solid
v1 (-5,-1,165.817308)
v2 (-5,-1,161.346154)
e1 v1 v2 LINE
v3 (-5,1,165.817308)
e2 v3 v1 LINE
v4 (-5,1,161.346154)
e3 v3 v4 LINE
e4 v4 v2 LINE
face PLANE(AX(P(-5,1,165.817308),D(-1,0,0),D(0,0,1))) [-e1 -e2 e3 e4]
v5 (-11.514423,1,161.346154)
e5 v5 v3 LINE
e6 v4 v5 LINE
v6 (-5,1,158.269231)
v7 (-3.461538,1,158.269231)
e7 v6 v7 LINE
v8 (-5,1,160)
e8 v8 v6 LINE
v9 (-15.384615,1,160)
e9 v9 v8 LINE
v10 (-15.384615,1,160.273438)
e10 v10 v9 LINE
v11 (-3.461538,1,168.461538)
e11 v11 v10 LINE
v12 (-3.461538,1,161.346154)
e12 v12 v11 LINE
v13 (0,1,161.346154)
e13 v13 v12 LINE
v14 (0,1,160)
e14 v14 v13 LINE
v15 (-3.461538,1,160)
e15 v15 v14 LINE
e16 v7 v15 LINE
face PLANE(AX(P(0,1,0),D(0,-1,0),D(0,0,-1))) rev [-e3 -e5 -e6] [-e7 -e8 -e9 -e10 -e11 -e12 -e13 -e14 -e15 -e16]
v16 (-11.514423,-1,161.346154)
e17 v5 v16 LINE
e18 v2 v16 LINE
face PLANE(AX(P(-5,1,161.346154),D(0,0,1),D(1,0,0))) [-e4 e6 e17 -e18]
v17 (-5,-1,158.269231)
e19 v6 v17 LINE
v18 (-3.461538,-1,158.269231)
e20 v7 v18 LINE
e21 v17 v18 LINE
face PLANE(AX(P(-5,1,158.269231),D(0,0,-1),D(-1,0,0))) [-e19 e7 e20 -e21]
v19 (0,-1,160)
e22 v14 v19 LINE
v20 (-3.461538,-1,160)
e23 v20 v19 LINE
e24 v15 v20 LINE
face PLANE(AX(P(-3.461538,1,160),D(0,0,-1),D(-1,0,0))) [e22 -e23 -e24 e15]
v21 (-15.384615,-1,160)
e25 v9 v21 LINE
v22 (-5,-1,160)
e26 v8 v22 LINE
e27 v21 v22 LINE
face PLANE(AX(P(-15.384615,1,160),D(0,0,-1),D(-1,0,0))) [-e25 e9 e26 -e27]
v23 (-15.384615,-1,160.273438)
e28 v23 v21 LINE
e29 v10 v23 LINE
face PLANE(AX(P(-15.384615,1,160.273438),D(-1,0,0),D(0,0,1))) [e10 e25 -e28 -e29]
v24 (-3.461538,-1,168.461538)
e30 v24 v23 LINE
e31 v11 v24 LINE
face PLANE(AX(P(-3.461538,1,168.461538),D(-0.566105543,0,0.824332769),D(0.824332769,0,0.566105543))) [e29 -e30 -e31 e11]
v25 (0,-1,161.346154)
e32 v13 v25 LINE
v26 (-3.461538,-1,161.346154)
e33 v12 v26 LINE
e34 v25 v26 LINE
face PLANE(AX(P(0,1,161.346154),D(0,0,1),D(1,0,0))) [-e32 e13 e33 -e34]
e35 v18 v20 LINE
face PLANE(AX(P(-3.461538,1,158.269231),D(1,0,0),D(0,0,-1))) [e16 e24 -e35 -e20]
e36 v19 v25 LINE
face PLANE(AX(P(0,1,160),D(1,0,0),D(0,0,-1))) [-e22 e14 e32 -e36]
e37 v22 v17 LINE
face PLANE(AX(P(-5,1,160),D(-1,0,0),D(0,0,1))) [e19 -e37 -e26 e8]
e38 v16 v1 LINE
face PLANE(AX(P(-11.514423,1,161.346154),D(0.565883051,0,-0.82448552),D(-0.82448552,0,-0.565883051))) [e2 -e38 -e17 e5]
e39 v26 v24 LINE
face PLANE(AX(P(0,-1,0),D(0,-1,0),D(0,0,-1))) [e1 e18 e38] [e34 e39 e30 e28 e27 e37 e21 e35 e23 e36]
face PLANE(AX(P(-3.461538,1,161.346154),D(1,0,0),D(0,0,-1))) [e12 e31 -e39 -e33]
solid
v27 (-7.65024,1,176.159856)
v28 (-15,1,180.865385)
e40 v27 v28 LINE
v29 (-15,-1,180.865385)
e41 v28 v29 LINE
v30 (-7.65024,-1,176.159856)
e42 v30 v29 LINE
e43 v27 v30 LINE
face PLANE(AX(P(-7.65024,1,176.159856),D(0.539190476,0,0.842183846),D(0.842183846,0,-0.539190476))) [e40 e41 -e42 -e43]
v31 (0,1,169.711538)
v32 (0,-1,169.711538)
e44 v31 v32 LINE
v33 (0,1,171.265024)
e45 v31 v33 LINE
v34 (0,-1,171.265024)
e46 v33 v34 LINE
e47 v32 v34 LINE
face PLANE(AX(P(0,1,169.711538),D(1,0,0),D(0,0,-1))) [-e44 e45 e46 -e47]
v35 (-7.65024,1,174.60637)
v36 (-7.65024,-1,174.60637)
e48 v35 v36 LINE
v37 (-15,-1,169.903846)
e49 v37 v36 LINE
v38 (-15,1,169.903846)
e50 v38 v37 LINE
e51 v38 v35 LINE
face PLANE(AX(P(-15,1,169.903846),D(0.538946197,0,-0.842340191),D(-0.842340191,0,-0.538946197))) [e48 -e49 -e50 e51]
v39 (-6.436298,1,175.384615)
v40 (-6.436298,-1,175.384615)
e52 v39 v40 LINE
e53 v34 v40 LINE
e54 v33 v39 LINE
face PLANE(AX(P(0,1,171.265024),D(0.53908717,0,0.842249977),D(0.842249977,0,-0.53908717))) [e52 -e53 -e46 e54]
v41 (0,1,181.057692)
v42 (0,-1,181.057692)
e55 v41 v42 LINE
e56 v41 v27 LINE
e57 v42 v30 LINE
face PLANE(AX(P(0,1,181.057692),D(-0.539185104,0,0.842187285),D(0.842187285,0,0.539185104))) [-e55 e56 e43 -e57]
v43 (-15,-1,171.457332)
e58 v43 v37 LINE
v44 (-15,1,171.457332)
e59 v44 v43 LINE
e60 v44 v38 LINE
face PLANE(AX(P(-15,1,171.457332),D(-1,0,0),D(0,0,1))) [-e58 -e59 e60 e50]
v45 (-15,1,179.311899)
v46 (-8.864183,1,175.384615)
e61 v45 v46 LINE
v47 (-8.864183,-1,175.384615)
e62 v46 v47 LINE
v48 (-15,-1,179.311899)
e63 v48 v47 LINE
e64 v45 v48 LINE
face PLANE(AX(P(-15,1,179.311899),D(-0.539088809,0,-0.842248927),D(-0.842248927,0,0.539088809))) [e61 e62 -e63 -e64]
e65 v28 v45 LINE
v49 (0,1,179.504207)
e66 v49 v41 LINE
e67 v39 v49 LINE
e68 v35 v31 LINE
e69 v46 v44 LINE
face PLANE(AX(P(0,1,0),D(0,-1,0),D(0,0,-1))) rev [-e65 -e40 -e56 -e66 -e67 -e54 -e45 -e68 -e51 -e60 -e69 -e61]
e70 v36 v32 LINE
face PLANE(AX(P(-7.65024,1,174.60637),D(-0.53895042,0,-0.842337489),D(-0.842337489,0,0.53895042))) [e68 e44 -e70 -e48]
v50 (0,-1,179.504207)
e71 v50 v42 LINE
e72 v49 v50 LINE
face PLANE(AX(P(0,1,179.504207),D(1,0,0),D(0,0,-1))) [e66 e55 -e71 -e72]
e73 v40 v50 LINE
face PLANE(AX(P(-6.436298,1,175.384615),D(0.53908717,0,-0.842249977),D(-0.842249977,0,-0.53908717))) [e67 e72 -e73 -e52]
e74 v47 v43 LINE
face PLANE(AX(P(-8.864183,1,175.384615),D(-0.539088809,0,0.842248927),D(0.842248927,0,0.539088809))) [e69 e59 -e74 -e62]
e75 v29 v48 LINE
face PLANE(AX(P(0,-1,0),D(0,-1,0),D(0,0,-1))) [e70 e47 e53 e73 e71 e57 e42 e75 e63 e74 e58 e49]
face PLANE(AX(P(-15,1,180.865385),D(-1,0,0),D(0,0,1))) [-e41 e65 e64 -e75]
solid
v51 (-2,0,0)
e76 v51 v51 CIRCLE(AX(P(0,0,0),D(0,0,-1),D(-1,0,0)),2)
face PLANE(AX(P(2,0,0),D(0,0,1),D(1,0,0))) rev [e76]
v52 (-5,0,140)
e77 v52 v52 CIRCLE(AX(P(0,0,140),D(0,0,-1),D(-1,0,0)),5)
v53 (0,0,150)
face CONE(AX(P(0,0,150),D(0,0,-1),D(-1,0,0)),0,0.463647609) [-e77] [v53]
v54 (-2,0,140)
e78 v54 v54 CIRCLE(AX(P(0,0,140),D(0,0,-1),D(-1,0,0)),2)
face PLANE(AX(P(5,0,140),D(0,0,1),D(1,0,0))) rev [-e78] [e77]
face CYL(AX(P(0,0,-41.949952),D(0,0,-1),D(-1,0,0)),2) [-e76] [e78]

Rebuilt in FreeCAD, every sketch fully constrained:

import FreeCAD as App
import Part
import Sketcher
from FreeCAD import Vector


def add_polygon(sketch, points):
    """Adds a closed chain of lines whose ends are joined by coincident constraints."""
    first, n = sketch.GeometryCount, len(points)
    for a, b in zip(points, points[1:] + points[:1]):
        sketch.addGeometry(Part.LineSegment(App.Vector(*a, 0), App.Vector(*b, 0)), False)
    for i in range(n):
        sketch.addConstraint(Sketcher.Constraint("Coincident", first + i, 2, first + (i + 1) % n, 1))

doc = App.newDocument("Part")
body = doc.addObject("PartDesign::Body", "Body")

sketch1 = body.newObject("Sketcher::SketchObject", "Sketch")
sketch1.AttachmentSupport = (doc.getObject("XZ_Plane"), [""])
sketch1.MapMode = "FlatFace"
add_polygon(sketch1, [(0, 150), (5, 140), (2, 140), (2, 0), (0, 0)])
sketch1.addConstraint(Sketcher.Constraint("Horizontal", 1))
sketch1.addConstraint(Sketcher.Constraint("Vertical", 2))
sketch1.addConstraint(Sketcher.Constraint("Horizontal", 3))
sketch1.addConstraint(Sketcher.Constraint("Vertical", 4))
sketch1.addConstraint(Sketcher.Constraint("Coincident", 3, 2, -1, 1))
sketch1.addConstraint(Sketcher.Constraint("DistanceX", 1, 2, 1, 1, 3.0))
sketch1.addConstraint(Sketcher.Constraint("DistanceX", 3, 2, 3, 1, 2.0))
sketch1.addConstraint(Sketcher.Constraint("DistanceY", 2, 2, 2, 1, 140.0))
sketch1.addConstraint(Sketcher.Constraint("DistanceY", 4, 1, 4, 2, 150.0))
revolution = body.newObject("PartDesign::Revolution", "Revolution")
revolution.Profile = sketch1
revolution.ReferenceAxis = (sketch1, ["V_Axis"])
revolution.Angle = 360
body2 = doc.addObject("PartDesign::Body", "Body001")

sketch2 = body2.newObject("Sketcher::SketchObject", "Sketch001")
sketch2.AttachmentSupport = (doc.getObject("XZ_Plane001"), [""])
sketch2.MapMode = "FlatFace"
add_polygon(sketch2, [(-15.38, 160), (-15.38, 160.27), (-3.46, 168.46), (-3.46, 161.35), (0, 161.35), (0, 160), (-3.46, 160), (-3.46, 158.27), (-5, 158.27), (-5, 160)])
add_polygon(sketch2, [(-5, 161.35), (-5, 165.82), (-11.51, 161.35)])
sketch2.addConstraint(Sketcher.Constraint("Vertical", 0))
sketch2.addConstraint(Sketcher.Constraint("Vertical", 2))
sketch2.addConstraint(Sketcher.Constraint("Horizontal", 3))
sketch2.addConstraint(Sketcher.Constraint("Vertical", 4))
sketch2.addConstraint(Sketcher.Constraint("Horizontal", 5))
sketch2.addConstraint(Sketcher.Constraint("Vertical", 6))
sketch2.addConstraint(Sketcher.Constraint("Horizontal", 7))
sketch2.addConstraint(Sketcher.Constraint("Vertical", 8))
sketch2.addConstraint(Sketcher.Constraint("Horizontal", 9))
sketch2.addConstraint(Sketcher.Constraint("Vertical", 10))
sketch2.addConstraint(Sketcher.Constraint("Horizontal", 12))
sketch2.addConstraint(Sketcher.Constraint("PointOnObject", 3, 2, -2))
sketch2.addConstraint(Sketcher.Constraint("Horizontal", 5, 2, 8, 2))
sketch2.addConstraint(Sketcher.Constraint("Horizontal", 3, 2, 11, 2))
sketch2.addConstraint(Sketcher.Constraint("Vertical", 2, 2, 5, 2))
sketch2.addConstraint(Sketcher.Constraint("Vertical", 8, 2, 10, 2))
sketch2.addConstraint(Sketcher.Constraint("DistanceY", -1, 1, 4, 2, 160.0))
sketch2.addConstraint(Sketcher.Constraint("DistanceX", 7, 2, -1, 1, 5.0))
sketch2.addConstraint(Sketcher.Constraint("DistanceX", 3, 1, 3, 2, 3.461538))
sketch2.addConstraint(Sketcher.Constraint("DistanceY", 6, 2, 6, 1, 1.730769))
sketch2.addConstraint(Sketcher.Constraint("DistanceY", 0, 2, 1, 2, 8.188101))
sketch2.addConstraint(Sketcher.Constraint("DistanceX", 9, 2, 9, 1, 10.384615))
sketch2.addConstraint(Sketcher.Constraint("DistanceX", 12, 1, 12, 2, 6.514423))
sketch2.addConstraint(Sketcher.Constraint("DistanceY", 0, 1, 0, 2, 0.273438))
sketch2.addConstraint(Sketcher.Constraint("DistanceY", 2, 2, 2, 1, 7.115385))
sketch2.addConstraint(Sketcher.Constraint("DistanceY", 10, 1, 10, 2, 4.471154))
pad1 = body2.newObject("PartDesign::Pad", "Pad")
pad1.Profile = sketch2
pad1.Type = "TwoLengths"
pad1.Length = 1
pad1.Length2 = 1
pad1.Reversed = True
body3 = doc.addObject("PartDesign::Body", "Body002")

sketch3 = body3.newObject("Sketcher::SketchObject", "Sketch002")
sketch3.AttachmentSupport = (doc.getObject("XZ_Plane002"), [""])
sketch3.MapMode = "FlatFace"
add_polygon(sketch3, [(-15, 179.311899), (-15, 180.865385), (-7.65024, 176.159856), (0, 181.057692), (0, 179.504207), (-6.436298, 175.384615), (0, 171.265024), (0, 169.711538), (-7.65024, 174.60637), (-15, 169.903846), (-15, 171.457332), (-8.864183, 175.384615)])
sketch3.addConstraint(Sketcher.Constraint("Vertical", 0))
sketch3.addConstraint(Sketcher.Constraint("Vertical", 3))
sketch3.addConstraint(Sketcher.Constraint("Vertical", 6))
sketch3.addConstraint(Sketcher.Constraint("Vertical", 9))
sketch3.addConstraint(Sketcher.Constraint("PointOnObject", 2, 2, -2))
sketch3.addConstraint(Sketcher.Constraint("PointOnObject", 5, 2, -2))
sketch3.addConstraint(Sketcher.Constraint("DistanceX", 0, 2, -1, 1, 15.0))
sketch3.addConstraint(Sketcher.Constraint("DistanceX", 8, 2, -1, 1, 15.0))
sketch3.addConstraint(Sketcher.Constraint("DistanceX", 4, 2, -1, 1, 6.436298))
sketch3.addConstraint(Sketcher.Constraint("DistanceY", -1, 1, 11, 2, 179.311899))
sketch3.addConstraint(Sketcher.Constraint("Distance", 4, 7.641791))
sketch3.addConstraint(Sketcher.Constraint("Distance", 5, 7.641791))
sketch3.addConstraint(Sketcher.Constraint("Distance", 10, 7.28504))
sketch3.addConstraint(Sketcher.Constraint("Distance", 11, 7.28504))
sketch3.addConstraint(Sketcher.Constraint("DistanceY", 0, 1, 0, 2, 1.553486))
sketch3.addConstraint(Sketcher.Constraint("DistanceY", 3, 2, 3, 1, 1.553486))
sketch3.addConstraint(Sketcher.Constraint("DistanceY", 6, 2, 6, 1, 1.553486))
sketch3.addConstraint(Sketcher.Constraint("DistanceY", 9, 1, 9, 2, 1.553486))
sketch3.addConstraint(Sketcher.Constraint("DistanceX", 1, 2, -1, 1, 7.65024))
sketch3.addConstraint(Sketcher.Constraint("DistanceY", -1, 1, 6, 2, 169.711538))
sketch3.addConstraint(Sketcher.Constraint("DistanceX", 7, 2, -1, 1, 7.65024))
sketch3.addConstraint(Sketcher.Constraint("DistanceY", -1, 1, 7, 2, 174.60637))
sketch3.addConstraint(Sketcher.Constraint("DistanceY", -1, 1, 9, 2, 171.457332))
sketch3.addConstraint(Sketcher.Constraint("DistanceY", 1, 2, 0, 2, 4.705529))
pad2 = body3.newObject("PartDesign::Pad", "Pad001")
pad2.Profile = sketch3
pad2.Type = "TwoLengths"
pad2.Length = 1
pad2.Length2 = 1
pad2.Reversed = True

doc.recompute()
